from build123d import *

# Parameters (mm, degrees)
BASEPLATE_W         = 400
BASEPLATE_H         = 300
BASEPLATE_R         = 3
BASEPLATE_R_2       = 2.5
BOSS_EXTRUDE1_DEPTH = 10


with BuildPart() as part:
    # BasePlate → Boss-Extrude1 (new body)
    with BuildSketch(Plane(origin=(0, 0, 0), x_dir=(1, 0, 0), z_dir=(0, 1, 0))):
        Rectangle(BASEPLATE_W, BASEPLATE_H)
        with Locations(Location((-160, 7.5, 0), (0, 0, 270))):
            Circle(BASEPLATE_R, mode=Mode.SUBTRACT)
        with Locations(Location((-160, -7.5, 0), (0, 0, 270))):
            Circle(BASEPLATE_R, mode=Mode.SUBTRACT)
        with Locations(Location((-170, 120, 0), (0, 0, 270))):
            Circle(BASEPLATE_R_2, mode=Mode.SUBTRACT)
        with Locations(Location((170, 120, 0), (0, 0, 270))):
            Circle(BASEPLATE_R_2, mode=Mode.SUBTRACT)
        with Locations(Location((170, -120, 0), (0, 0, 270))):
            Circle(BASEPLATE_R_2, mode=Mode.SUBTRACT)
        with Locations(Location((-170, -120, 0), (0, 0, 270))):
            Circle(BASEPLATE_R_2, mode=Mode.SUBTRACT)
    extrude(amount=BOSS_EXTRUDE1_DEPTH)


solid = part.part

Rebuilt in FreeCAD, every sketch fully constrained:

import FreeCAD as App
import Part
import Sketcher

V = App.Vector

doc = App.newDocument("Part")
body = doc.addObject("PartDesign::Body", "Body")

sketch1 = body.newObject("Sketcher::SketchObject", "Sketch")
sketch1.AttachmentSupport = (doc.getObject("XZ_Plane"), [""])
sketch1.MapMode = "FlatFace"
sketch1.addGeometry([
    Part.LineSegment(V(-200, -150, 0), V(-200, 150, 0)),
    Part.LineSegment(V(-200, 150, 0), V(200, 150, 0)),
    Part.LineSegment(V(200, 150, 0), V(200, -150, 0)),
    Part.LineSegment(V(200, -150, 0), V(-200, -150, 0)),
    Part.Circle(V(-170, 120, 0), V(0, 0, 1), 2.5),
    Part.Circle(V(-160, 7.5, 0), V(0, 0, 1), 3),
    Part.Circle(V(170, 120, 0), V(0, 0, 1), 2.5),
    Part.Circle(V(-160, -7.5, 0), V(0, 0, 1), 3),
    Part.Circle(V(-170, -120, 0), V(0, 0, 1), 2.5),
    Part.Circle(V(170, -120, 0), V(0, 0, 1), 2.5),
], False)
sketch1.addConstraint([
    Sketcher.Constraint("Coincident", 0, 2, 1, 1),
    Sketcher.Constraint("Coincident", 1, 2, 2, 1),
    Sketcher.Constraint("Coincident", 2, 2, 3, 1),
    Sketcher.Constraint("Coincident", 3, 2, 0, 1),
    Sketcher.Constraint("Vertical", 0),
    Sketcher.Constraint("Horizontal", 1),
    Sketcher.Constraint("Vertical", 2),
    Sketcher.Constraint("Horizontal", 3),
    Sketcher.Constraint("Equal", 4, 6),
    Sketcher.Constraint("Equal", 5, 7),
    Sketcher.Constraint("Equal", 6, 8),
    Sketcher.Constraint("Equal", 8, 9),
    Sketcher.Constraint("Symmetric", 6, 3, 8, 3, -1, 1),
    Sketcher.Constraint("Symmetric", 4, 3, 9, 3, -1, 1),
    Sketcher.Constraint("Symmetric", 0, 2, 2, 2, -1, 1),
    Sketcher.Constraint("Symmetric", 4, 3, 6, 3, -2),
    Sketcher.Constraint("Symmetric", 5, 3, 7, 3, -1),
    Sketcher.Constraint("Diameter", 4, 5.0),
    Sketcher.Constraint("Diameter", 5, 6.0),
    Sketcher.Constraint("DistanceX", 1, 1, 1, 2, 400.0),
    Sketcher.Constraint("DistanceY", 0, 1, 0, 2, 300.0),
    Sketcher.Constraint("DistanceX", 4, 3, -1, 1, 170.0),
    Sketcher.Constraint("DistanceY", -1, 1, 4, 3, 120.0),
    Sketcher.Constraint("DistanceX", 5, 3, -1, 1, 160.0),
    Sketcher.Constraint("DistanceY", 7, 3, 5, 3, 15.0),
])
pad1 = body.newObject("PartDesign::Pad", "Pad")
pad1.Profile = sketch1
pad1.Length = 10
pad1.Reversed = True

doc.recompute()
